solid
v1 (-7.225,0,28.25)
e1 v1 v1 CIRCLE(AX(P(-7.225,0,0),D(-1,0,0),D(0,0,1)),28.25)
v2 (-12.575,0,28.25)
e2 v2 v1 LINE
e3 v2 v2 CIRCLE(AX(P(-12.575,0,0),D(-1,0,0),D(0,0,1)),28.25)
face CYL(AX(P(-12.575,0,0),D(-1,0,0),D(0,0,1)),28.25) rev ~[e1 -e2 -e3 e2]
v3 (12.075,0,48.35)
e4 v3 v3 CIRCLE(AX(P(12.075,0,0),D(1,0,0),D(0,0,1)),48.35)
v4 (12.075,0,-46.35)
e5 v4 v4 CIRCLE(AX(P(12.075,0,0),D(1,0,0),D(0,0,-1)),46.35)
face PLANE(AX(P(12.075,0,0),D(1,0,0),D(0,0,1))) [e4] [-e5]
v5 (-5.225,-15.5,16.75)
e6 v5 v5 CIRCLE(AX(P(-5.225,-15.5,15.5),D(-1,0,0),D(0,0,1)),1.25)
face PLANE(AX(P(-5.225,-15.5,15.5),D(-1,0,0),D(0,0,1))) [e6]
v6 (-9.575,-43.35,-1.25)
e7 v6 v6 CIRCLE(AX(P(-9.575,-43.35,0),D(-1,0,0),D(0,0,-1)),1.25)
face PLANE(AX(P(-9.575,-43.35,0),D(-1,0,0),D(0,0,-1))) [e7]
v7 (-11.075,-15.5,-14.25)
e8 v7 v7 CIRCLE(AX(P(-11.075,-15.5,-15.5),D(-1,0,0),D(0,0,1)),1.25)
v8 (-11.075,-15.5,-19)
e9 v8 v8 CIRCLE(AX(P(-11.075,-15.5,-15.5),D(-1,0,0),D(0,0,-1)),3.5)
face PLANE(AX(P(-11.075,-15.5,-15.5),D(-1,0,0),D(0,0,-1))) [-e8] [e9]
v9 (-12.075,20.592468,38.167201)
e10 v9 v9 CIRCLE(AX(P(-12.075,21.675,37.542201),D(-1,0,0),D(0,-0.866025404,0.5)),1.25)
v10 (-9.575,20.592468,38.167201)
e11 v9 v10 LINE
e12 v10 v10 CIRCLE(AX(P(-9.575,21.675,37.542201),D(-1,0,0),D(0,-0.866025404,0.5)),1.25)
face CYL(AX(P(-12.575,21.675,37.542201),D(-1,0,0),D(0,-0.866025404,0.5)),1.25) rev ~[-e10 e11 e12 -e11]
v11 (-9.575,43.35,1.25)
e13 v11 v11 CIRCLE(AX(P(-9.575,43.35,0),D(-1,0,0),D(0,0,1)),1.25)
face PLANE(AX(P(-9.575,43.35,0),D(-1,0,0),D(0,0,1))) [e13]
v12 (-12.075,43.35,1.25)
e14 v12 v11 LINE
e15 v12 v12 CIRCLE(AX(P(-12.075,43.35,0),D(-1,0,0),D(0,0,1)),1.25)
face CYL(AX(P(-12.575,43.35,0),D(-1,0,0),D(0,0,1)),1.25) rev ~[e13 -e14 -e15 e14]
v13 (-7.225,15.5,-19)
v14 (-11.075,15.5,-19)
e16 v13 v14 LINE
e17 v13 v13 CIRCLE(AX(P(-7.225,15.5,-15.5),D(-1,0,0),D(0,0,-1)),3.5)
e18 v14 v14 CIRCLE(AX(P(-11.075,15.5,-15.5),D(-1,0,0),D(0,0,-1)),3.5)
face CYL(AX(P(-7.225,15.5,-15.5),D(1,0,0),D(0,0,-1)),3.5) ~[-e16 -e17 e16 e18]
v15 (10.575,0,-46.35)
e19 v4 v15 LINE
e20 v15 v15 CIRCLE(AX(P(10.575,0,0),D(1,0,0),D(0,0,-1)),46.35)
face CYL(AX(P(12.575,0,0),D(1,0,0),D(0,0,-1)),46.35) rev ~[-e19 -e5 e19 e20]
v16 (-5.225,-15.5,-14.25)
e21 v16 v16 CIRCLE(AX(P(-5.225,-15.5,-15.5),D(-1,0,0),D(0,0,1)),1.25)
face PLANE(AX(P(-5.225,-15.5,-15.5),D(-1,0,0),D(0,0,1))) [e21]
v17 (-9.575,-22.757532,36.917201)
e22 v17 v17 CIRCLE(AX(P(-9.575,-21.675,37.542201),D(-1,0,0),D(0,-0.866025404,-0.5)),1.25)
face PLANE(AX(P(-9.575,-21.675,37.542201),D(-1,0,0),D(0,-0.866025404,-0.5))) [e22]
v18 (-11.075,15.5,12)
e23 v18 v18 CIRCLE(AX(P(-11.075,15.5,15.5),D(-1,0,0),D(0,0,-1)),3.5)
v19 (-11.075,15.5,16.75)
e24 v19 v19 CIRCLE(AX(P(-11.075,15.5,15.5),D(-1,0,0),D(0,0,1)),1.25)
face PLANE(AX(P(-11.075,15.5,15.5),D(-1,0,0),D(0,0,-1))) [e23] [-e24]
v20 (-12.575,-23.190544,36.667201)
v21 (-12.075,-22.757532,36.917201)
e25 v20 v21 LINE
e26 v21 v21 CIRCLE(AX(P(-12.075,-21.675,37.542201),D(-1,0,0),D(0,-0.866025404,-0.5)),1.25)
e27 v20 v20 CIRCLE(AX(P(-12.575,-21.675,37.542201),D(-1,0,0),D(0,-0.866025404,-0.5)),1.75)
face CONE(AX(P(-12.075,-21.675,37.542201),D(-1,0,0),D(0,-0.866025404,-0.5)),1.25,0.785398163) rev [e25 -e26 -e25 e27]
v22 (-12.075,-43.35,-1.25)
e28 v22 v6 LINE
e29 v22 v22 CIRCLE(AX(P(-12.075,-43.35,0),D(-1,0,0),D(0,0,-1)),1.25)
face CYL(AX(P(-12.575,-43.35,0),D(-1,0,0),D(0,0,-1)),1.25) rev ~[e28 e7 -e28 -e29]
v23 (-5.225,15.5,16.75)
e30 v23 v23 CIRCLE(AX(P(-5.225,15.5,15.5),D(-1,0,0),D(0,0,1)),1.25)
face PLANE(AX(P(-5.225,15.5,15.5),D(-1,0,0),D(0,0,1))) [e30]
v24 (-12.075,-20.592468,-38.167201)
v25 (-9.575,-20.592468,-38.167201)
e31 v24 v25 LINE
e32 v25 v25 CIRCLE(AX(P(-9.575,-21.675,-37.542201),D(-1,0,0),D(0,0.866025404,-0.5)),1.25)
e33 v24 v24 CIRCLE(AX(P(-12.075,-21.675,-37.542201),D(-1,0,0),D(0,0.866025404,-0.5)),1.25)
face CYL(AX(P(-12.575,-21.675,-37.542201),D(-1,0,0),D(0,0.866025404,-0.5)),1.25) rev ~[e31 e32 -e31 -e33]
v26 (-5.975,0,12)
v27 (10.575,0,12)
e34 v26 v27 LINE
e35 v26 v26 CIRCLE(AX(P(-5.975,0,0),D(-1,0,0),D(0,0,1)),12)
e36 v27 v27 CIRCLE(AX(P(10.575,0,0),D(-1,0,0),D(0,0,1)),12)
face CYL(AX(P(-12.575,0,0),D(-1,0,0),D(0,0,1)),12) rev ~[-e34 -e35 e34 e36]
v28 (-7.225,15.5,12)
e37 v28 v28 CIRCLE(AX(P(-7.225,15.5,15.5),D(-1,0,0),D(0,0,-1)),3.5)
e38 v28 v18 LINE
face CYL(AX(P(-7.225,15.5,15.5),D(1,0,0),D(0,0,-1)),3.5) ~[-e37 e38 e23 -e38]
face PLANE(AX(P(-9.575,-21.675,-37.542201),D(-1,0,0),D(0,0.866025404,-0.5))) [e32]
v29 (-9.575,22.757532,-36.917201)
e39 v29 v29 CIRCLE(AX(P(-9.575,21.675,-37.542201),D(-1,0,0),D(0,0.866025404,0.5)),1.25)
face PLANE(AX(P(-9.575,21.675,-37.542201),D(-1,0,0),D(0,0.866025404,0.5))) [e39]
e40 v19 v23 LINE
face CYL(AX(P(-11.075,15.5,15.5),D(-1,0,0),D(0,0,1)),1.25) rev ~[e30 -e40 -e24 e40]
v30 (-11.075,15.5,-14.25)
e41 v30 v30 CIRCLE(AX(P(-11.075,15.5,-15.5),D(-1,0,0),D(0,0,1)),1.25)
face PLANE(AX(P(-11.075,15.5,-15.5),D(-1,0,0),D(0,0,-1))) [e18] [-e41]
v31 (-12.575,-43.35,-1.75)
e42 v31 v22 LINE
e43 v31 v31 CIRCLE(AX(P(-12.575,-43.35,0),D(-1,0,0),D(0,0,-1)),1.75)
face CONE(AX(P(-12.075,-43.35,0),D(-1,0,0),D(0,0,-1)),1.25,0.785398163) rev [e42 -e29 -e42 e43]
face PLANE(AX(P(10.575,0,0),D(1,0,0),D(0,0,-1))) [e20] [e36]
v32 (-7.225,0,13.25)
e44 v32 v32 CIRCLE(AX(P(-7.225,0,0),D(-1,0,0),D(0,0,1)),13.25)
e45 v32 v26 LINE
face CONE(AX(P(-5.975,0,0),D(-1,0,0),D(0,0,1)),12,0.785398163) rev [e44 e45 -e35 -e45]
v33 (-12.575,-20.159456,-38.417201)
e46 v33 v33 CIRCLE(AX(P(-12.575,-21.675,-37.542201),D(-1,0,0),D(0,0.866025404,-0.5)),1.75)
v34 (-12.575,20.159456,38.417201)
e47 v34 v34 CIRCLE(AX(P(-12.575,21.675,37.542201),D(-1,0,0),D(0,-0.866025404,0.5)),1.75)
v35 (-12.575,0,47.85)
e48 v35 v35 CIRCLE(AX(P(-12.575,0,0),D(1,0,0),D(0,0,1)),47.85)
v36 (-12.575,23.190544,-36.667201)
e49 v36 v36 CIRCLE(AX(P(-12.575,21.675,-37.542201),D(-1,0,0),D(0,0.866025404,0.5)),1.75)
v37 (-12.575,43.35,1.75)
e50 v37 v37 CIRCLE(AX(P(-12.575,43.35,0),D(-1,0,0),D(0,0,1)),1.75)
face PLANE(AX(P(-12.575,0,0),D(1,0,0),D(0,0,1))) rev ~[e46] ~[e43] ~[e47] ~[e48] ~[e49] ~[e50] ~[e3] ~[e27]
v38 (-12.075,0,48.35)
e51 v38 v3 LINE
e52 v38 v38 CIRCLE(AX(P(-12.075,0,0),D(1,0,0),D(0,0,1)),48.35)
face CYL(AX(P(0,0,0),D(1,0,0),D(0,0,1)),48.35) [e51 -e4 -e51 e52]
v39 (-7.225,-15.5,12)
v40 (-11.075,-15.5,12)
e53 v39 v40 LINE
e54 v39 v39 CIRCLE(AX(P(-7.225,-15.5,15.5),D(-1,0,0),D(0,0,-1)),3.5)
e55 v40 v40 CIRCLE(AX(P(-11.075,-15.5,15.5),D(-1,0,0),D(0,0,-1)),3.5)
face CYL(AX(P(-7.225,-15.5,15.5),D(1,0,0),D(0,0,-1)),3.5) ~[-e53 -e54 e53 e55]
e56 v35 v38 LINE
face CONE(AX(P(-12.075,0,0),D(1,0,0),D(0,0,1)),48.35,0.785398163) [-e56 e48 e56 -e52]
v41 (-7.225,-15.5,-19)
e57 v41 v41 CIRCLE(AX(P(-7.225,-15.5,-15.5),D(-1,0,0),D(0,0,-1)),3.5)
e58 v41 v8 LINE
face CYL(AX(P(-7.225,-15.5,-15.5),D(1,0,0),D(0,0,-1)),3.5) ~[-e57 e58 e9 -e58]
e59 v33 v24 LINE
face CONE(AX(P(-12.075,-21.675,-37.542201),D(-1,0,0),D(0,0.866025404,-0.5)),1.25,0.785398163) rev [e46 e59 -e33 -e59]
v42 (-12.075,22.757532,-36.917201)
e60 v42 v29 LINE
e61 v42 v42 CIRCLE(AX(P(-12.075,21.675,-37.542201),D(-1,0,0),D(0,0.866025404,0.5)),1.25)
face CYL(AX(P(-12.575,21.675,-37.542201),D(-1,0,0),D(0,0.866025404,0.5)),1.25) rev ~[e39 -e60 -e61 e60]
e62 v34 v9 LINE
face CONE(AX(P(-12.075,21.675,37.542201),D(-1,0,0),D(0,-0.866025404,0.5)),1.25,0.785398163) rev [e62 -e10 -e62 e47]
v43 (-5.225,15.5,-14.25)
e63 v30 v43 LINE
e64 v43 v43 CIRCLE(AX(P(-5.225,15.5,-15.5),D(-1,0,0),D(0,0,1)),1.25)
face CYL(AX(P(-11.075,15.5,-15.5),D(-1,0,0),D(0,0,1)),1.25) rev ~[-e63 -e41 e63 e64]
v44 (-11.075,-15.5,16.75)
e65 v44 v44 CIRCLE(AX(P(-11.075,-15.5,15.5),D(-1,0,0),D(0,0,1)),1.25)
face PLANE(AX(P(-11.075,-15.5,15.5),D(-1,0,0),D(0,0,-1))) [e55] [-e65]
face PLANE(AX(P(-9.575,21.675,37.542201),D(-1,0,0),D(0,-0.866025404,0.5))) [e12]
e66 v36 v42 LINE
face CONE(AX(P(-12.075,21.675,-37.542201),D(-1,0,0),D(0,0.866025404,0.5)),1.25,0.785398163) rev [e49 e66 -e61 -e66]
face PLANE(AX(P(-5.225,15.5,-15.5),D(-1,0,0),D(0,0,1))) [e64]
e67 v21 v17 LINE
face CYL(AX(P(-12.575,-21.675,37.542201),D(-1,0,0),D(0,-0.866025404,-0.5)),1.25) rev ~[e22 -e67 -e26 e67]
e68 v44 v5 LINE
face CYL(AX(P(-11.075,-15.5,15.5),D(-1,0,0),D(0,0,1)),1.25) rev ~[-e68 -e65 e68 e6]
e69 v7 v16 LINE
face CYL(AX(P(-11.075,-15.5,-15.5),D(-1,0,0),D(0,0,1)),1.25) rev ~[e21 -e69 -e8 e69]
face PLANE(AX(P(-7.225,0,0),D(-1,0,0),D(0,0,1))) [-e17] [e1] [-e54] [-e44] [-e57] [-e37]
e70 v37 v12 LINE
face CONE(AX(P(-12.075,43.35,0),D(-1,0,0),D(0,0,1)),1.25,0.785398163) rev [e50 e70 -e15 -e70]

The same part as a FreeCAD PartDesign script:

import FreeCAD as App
import Part
import Sketcher
Q = App.Units.Quantity


def edges_at(feature, points):
    """Names of the edges that pass closest to the given points."""
    edges = feature.Shape.Edges
    near = lambda p: min(range(len(edges)), key=lambda i: edges[i].distToShape(Part.Vertex(*p))[0])
    return sorted({f"Edge{near(p) + 1}" for p in points})

doc = App.newDocument("Part")
body = doc.addObject("PartDesign::Body", "Body")

# Sketch on YZ plane
sketch1 = body.newObject("Sketcher::SketchObject", "Sketch")
sketch1.AttachmentSupport = (doc.getObject("YZ_Plane"), [""])
sketch1.MapMode = "FlatFace"
sketch1.addGeometry(Part.Circle(App.Vector(0, 0, 0), App.Vector(0, 0, 1), 48), False)
sketch1.addConstraint([
    Sketcher.Constraint("Coincident", 0, 3, -1, 1),
    Sketcher.Constraint("Diameter", 0, Q("96.7 mm")),
])
pad1 = body.newObject("PartDesign::Pad", "Pad")
pad1.Profile = sketch1
pad1.Length = 25.15
pad1.Midplane = True

# Sketch on YZ plane
sketch2 = body.newObject("Sketcher::SketchObject", "Sketch001")
sketch2.AttachmentSupport = (doc.getObject("YZ_Plane"), [""])
sketch2.MapMode = "FlatFace"
sketch2.AttachmentOffset = App.Placement(App.Vector(0, 0, -12.575), App.Rotation())
sketch2.addGeometry(Part.Circle(App.Vector(43.4, 0, 0), App.Vector(0, 0, 1), 1.2), False)
sketch2.addConstraint([
    Sketcher.Constraint("PointOnObject", 0, 3, -1),
    Sketcher.Constraint("Diameter", 0, Q("2.5 mm")),
    Sketcher.Constraint("DistanceX", -1, 1, 0, 3, Q("43.35 mm")),
])
pocket1 = body.newObject("PartDesign::Pocket", "Pocket")
pocket1.Profile = sketch2
pocket1.Length = 3
pocket1.Reversed = True
doc.recompute()

chamfer = body.newObject("PartDesign::Chamfer", "Chamfer")
chamfer.Base = (pocket1, edges_at(pocket1, [(-12.575, 43.35, -1.25)]))
chamfer.Size = 0.5
doc.recompute()

polarpattern = body.newObject("PartDesign::PolarPattern", "PolarPattern")
polarpattern.Originals = [pocket1]
polarpattern.Axis = (doc.getObject("X_Axis"), [""])
polarpattern.Angle = 360
polarpattern.Occurrences = 6
body.Tip = polarpattern
doc.recompute()

chamfer2 = body.newObject("PartDesign::Chamfer", "Chamfer001")
chamfer2.Base = (polarpattern, edges_at(polarpattern, [
    (-12.575, 22.758, 36.917),
    (-12.575, -20.592, 38.167),
    (-12.575, -43.35, 1.25),
    (-12.575, -22.758, -36.917),
    (-12.575, 20.592, -38.167),
]))
chamfer2.Size = 0.5

# Sketch on YZ plane
sketch3 = body.newObject("Sketcher::SketchObject", "Sketch002")
sketch3.AttachmentSupport = (doc.getObject("YZ_Plane"), [""])
sketch3.MapMode = "FlatFace"
sketch3.AttachmentOffset = App.Placement(App.Vector(0, 0, -12.575), App.Rotation())
sketch3.addGeometry(Part.Circle(App.Vector(0, 0, 0), App.Vector(0, 0, 1), 12), False)
sketch3.addConstraint([
    Sketcher.Constraint("Coincident", 0, 3, -1, 1),
    Sketcher.Constraint("Diameter", 0, Q("24 mm")),
])
pocket2 = body.newObject("PartDesign::Pocket", "Pocket001")
pocket2.Profile = sketch3
pocket2.Length = 25.15
pocket2.Reversed = True
doc.recompute()

chamfer3 = body.newObject("PartDesign::Chamfer", "Chamfer002")
chamfer3.Base = (pocket2, edges_at(pocket2, [(-12.575, 0, -12)]))
chamfer3.Size = 1.25
doc.recompute()

chamfer4 = body.newObject("PartDesign::Chamfer", "Chamfer003")
chamfer4.Base = (chamfer3, edges_at(chamfer3, [(-12.575, 0, -48.35)]))
chamfer4.Size = 0.5

# Sketch on YZ plane
sketch4 = body.newObject("Sketcher::SketchObject", "Sketch003")
sketch4.AttachmentSupport = (doc.getObject("YZ_Plane"), [""])
sketch4.MapMode = "FlatFace"
sketch4.AttachmentOffset = App.Placement(App.Vector(0, 0, -12.575), App.Rotation())
sketch4.addGeometry(Part.Circle(App.Vector(0, 0, 0), App.Vector(0, 0, 1), 28), False)
sketch4.addConstraint([
    Sketcher.Constraint("Coincident", 0, 3, -1, 1),
    Sketcher.Constraint("Diameter", 0, Q("56.5 mm")),
])
pocket3 = body.newObject("PartDesign::Pocket", "Pocket002")
pocket3.Profile = sketch4
pocket3.Length = 5.35
pocket3.Reversed = True

# Sketch on YZ plane
sketch5 = body.newObject("Sketcher::SketchObject", "Sketch004")
sketch5.AttachmentSupport = (doc.getObject("YZ_Plane"), [""])
sketch5.MapMode = "FlatFace"
sketch5.AttachmentOffset = App.Placement(App.Vector(0, 0, -7.225), App.Rotation())
sketch5.addGeometry([
    Part.Circle(App.Vector(15.5, -15.5, 0), App.Vector(0, 0, 1), 3.5),
    Part.Circle(App.Vector(15.5, 15.5, 0), App.Vector(0, 0, 1), 3.5),
    Part.Circle(App.Vector(-15.5, 15.5, 0), App.Vector(0, 0, 1), 3.5),
    Part.Circle(App.Vector(-15.5, -15.5, 0), App.Vector(0, 0, 1), 3.5),
], False)
sketch5.addConstraint([
    Sketcher.Constraint("Equal", 0, 1),
    Sketcher.Constraint("Equal", 1, 2),
    Sketcher.Constraint("Equal", 2, 3),
    Sketcher.Constraint("Symmetric", 0, 3, 2, 3, -1, 1),
    Sketcher.Constraint("Symmetric", 1, 3, 3, 3, -1, 1),
    Sketcher.Constraint("Symmetric", 1, 3, 2, 3, -2),
    Sketcher.Constraint("Diameter", 0, Q("7 mm")),
    Sketcher.Constraint("DistanceY", 0, 3, 1, 3, Q("31 mm")),
    Sketcher.Constraint("DistanceX", 2, 3, 1, 3, Q("31 mm")),
])
pad2 = body.newObject("PartDesign::Pad", "Pad001")
pad2.Profile = sketch5
pad2.Length = 3.85
pad2.Reversed = True

# Sketch on YZ plane
sketch6 = body.newObject("Sketcher::SketchObject", "Sketch005")
sketch6.AttachmentSupport = (doc.getObject("YZ_Plane"), [""])
sketch6.MapMode = "FlatFace"
sketch6.AttachmentOffset = App.Placement(App.Vector(0, 0, -11.075), App.Rotation())
sketch6.addGeometry([
    Part.Circle(App.Vector(15.5, -15.5, 0), App.Vector(0, 0, 1), 1.2),
    Part.Circle(App.Vector(15.5, 15.5, 0), App.Vector(0, 0, 1), 1.2),
    Part.Circle(App.Vector(-15.5, 15.5, 0), App.Vector(0, 0, 1), 1.2),
    Part.Circle(App.Vector(-15.5, -15.5, 0), App.Vector(0, 0, 1), 1.2),
], False)
sketch6.addConstraint([
    Sketcher.Constraint("Equal", 0, 1),
    Sketcher.Constraint("Equal", 1, 2),
    Sketcher.Constraint("Equal", 2, 3),
    Sketcher.Constraint("Symmetric", 0, 3, 2, 3, -1, 1),
    Sketcher.Constraint("Symmetric", 1, 3, 3, 3, -1, 1),
    Sketcher.Constraint("Symmetric", 1, 3, 2, 3, -2),
    Sketcher.Constraint("Diameter", 0, Q("2.5 mm")),
    Sketcher.Constraint("DistanceY", 0, 3, 1, 3, Q("31 mm")),
    Sketcher.Constraint("DistanceX", 2, 3, 1, 3, Q("31 mm")),
])
pocket4 = body.newObject("PartDesign::Pocket", "Pocket003")
pocket4.Profile = sketch6
pocket4.Length = 5.85
pocket4.Reversed = True

# Sketch on YZ plane
sketch7 = body.newObject("Sketcher::SketchObject", "Sketch006")
sketch7.AttachmentSupport = (doc.getObject("YZ_Plane"), [""])
sketch7.MapMode = "FlatFace"
sketch7.AttachmentOffset = App.Placement(App.Vector(0, 0, 12.575), App.Rotation())
sketch7.addGeometry(Part.Circle(App.Vector(0, 0, 0), App.Vector(0, 0, 1), 46), False)
sketch7.addConstraint([
    Sketcher.Constraint("Coincident", 0, 3, -1, 1),
    Sketcher.Constraint("Diameter", 0, Q("92.7 mm")),
])
pocket5 = body.newObject("PartDesign::Pocket", "Pocket004")
pocket5.Profile = sketch7
pocket5.Length = 2

# Sketch on YZ plane
sketch8 = body.newObject("Sketcher::SketchObject", "Sketch007")
sketch8.AttachmentSupport = (doc.getObject("YZ_Plane"), [""])
sketch8.MapMode = "FlatFace"
sketch8.AttachmentOffset = App.Placement(App.Vector(0, 0, 12.575), App.Rotation())
sketch8.addGeometry([
    Part.Circle(App.Vector(0, 0, 0), App.Vector(0, 0, 1), 48),
    Part.Circle(App.Vector(0, 0, 0), App.Vector(0, 0, 1), 46),
], False)
sketch8.addConstraint([
    Sketcher.Constraint("Coincident", 0, 3, -1, 1),
    Sketcher.Constraint("Coincident", 1, 3, -1, 1),
    Sketcher.Constraint("Diameter", 0, Q("96.7 mm")),
    Sketcher.Constraint("Diameter", 1, Q("92.7 mm")),
])
pocket6 = body.newObject("PartDesign::Pocket", "Pocket005")
pocket6.Profile = sketch8
pocket6.Length = 0.5
doc.recompute()

chamfer5 = body.newObject("PartDesign::Chamfer", "Chamfer004")
chamfer5.Base = (pocket6, edges_at(pocket6, [(-7.225, 0, -12)]))
chamfer5.Size = 1.25

doc.recompute()
